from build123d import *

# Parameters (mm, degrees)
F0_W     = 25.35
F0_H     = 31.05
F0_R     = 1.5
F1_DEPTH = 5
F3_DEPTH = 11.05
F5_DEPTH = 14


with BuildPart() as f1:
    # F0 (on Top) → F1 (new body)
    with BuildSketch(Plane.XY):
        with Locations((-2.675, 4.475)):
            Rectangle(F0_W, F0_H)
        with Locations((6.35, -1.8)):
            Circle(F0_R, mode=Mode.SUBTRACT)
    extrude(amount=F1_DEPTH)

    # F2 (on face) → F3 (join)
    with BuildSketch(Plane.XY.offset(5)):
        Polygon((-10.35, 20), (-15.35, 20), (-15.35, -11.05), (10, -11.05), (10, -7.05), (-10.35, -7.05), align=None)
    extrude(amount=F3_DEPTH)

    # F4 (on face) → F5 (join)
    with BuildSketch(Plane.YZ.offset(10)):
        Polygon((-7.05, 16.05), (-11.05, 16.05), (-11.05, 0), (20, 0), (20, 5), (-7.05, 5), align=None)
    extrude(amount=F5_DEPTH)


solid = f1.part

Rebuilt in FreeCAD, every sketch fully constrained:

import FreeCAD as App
import Part
import Sketcher


def add_polygon(sketch, points):
    """Adds a closed chain of lines whose ends are joined by coincident constraints."""
    first, n = sketch.GeometryCount, len(points)
    for a, b in zip(points, points[1:] + points[:1]):
        sketch.addGeometry(Part.LineSegment(App.Vector(*a, 0), App.Vector(*b, 0)), False)
    for i in range(n):
        sketch.addConstraint(Sketcher.Constraint("Coincident", first + i, 2, first + (i + 1) % n, 1))

doc = App.newDocument("Part")
body = doc.addObject("PartDesign::Body", "Body")

# Sketch on XY plane
sketch1 = body.newObject("Sketcher::SketchObject", "Sketch")
sketch1.AttachmentSupport = (doc.getObject("XY_Plane"), [""])
sketch1.MapMode = "FlatFace"
add_polygon(sketch1, [(-15.3, 20), (-15.3, -11.1), (10, -11.1), (10, 20)])  # lines 0-3
sketch1.addGeometry(Part.Circle(App.Vector(6.3, -1.8, 0), App.Vector(0, 0, 1), 1.5), False)  # 4
sketch1.addConstraint(Sketcher.Constraint("Vertical", 0))
sketch1.addConstraint(Sketcher.Constraint("Horizontal", 1))
sketch1.addConstraint(Sketcher.Constraint("Vertical", 2))
sketch1.addConstraint(Sketcher.Constraint("Horizontal", 3))
sketch1.addConstraint(Sketcher.Constraint("Diameter", 4, 3.0))
sketch1.addConstraint(Sketcher.Constraint("DistanceX", -1, 1, 1, 2, 10.0))
sketch1.addConstraint(Sketcher.Constraint("DistanceY", -1, 1, 2, 2, 20.0))
sketch1.addConstraint(Sketcher.Constraint("DistanceX", 1, 1, 1, 2, 25.35))
sketch1.addConstraint(Sketcher.Constraint("DistanceY", 0, 2, 0, 1, 31.05))
sketch1.addConstraint(Sketcher.Constraint("DistanceY", 4, 3, -1, 1, 1.8))
sketch1.addConstraint(Sketcher.Constraint("DistanceX", 0, 2, 4, 3, 21.7))
pad1 = body.newObject("PartDesign::Pad", "Pad")
pad1.Profile = sketch1
pad1.Length = 5

# Sketch on XY plane
sketch2 = body.newObject("Sketcher::SketchObject", "Sketch001")
sketch2.AttachmentSupport = (doc.getObject("XY_Plane"), [""])
sketch2.MapMode = "FlatFace"
sketch2.AttachmentOffset = App.Placement(App.Vector(0, 0, 5), App.Rotation())
add_polygon(sketch2, [(-10.3, 20), (-15.3, 20), (-15.3, -11.1), (10, -11.1), (10, -7), (-10.3, -7)])  # lines 0-5
sketch2.addConstraint(Sketcher.Constraint("Horizontal", 0))
sketch2.addConstraint(Sketcher.Constraint("Vertical", 1))
sketch2.addConstraint(Sketcher.Constraint("Horizontal", 2))
sketch2.addConstraint(Sketcher.Constraint("Vertical", 3))
sketch2.addConstraint(Sketcher.Constraint("Horizontal", 4))
sketch2.addConstraint(Sketcher.Constraint("Vertical", 5))
sketch2.addConstraint(Sketcher.Constraint("DistanceX", 0, 2, 0, 1, 5.0))
sketch2.addConstraint(Sketcher.Constraint("DistanceY", 3, 1, 3, 2, 4.0))
sketch2.addConstraint(Sketcher.Constraint("DistanceY", -1, 1, 0, 2, 20.0))
sketch2.addConstraint(Sketcher.Constraint("DistanceX", -1, 1, 2, 2, 10.0))
sketch2.addConstraint(Sketcher.Constraint("DistanceX", 2, 1, 2, 2, 25.35))
sketch2.addConstraint(Sketcher.Constraint("DistanceY", 1, 2, 1, 1, 31.05))
pad2 = body.newObject("PartDesign::Pad", "Pad001")
pad2.Profile = sketch2
pad2.Length = 11.05

# Sketch on YZ plane
sketch3 = body.newObject("Sketcher::SketchObject", "Sketch002")
sketch3.AttachmentSupport = (doc.getObject("YZ_Plane"), [""])
sketch3.MapMode = "FlatFace"
sketch3.AttachmentOffset = App.Placement(App.Vector(0, 0, 10), App.Rotation())
add_polygon(sketch3, [(-7, 16.1), (-11.1, 16.1), (-11.1, 0), (20, 0), (20, 5), (-7, 5)])  # lines 0-5
sketch3.addConstraint(Sketcher.Constraint("Horizontal", 0))
sketch3.addConstraint(Sketcher.Constraint("Vertical", 1))
sketch3.addConstraint(Sketcher.Constraint("Horizontal", 2))
sketch3.addConstraint(Sketcher.Constraint("Vertical", 3))
sketch3.addConstraint(Sketcher.Constraint("Horizontal", 4))
sketch3.addConstraint(Sketcher.Constraint("Vertical", 5))
sketch3.addConstraint(Sketcher.Constraint("PointOnObject", 1, 2, -1))
sketch3.addConstraint(Sketcher.Constraint("DistanceX", 0, 2, 0, 1, 4.0))
sketch3.addConstraint(Sketcher.Constraint("DistanceY", 3, 1, 3, 2, 5.0))
sketch3.addConstraint(Sketcher.Constraint("DistanceX", -1, 1, 2, 2, 20.0))
sketch3.addConstraint(Sketcher.Constraint("DistanceX", 2, 1, 2, 2, 31.05))
sketch3.addConstraint(Sketcher.Constraint("DistanceY", 1, 2, 1, 1, 16.05))
pad3 = body.newObject("PartDesign::Pad", "Pad002")
pad3.Profile = sketch3
pad3.Length = 14

doc.recompute()
